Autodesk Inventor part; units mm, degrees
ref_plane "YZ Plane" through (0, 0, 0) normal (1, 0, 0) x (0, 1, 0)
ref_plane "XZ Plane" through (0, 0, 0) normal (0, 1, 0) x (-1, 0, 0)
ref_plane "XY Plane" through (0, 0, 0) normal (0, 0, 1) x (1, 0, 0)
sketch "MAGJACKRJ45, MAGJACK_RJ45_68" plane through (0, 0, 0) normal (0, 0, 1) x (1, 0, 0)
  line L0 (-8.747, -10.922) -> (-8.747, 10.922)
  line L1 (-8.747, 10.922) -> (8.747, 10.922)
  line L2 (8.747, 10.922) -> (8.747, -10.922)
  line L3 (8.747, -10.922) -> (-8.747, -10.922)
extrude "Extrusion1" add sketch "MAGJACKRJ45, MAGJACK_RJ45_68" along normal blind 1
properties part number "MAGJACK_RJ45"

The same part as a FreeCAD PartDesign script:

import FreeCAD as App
import Part
import Sketcher

V = App.Vector


def add_polygon(sketch, points):
    """Adds a closed chain of lines whose ends are joined by coincident constraints."""
    first, n = sketch.GeometryCount, len(points)
    for a, b in zip(points, points[1:] + points[:1]):
        sketch.addGeometry(Part.LineSegment(App.Vector(*a, 0), App.Vector(*b, 0)), False)
    for i in range(n):
        sketch.addConstraint(Sketcher.Constraint("Coincident", first + i, 2, first + (i + 1) % n, 1))

doc = App.newDocument("Part")
body = doc.addObject("PartDesign::Body", "Body")

# Sketch on XY plane
sketch1 = body.newObject("Sketcher::SketchObject", "Sketch")
sketch1.AttachmentSupport = (doc.getObject("XY_Plane"), [""])
sketch1.MapMode = "FlatFace"
add_polygon(sketch1, [(-9, 11), (-9, -11), (9, -11), (9, 11)])  # lines 0-3
sketch1.addConstraint(Sketcher.Constraint("Vertical", 0))
sketch1.addConstraint(Sketcher.Constraint("Horizontal", 1))
sketch1.addConstraint(Sketcher.Constraint("Vertical", 2))
sketch1.addConstraint(Sketcher.Constraint("Horizontal", 3))
sketch1.addConstraint(Sketcher.Constraint("Symmetric", 0, 2, 2, 2, -1, 1))
sketch1.addConstraint(Sketcher.Constraint("DistanceX", 1, 1, 1, 2, 17.494))
sketch1.addConstraint(Sketcher.Constraint("DistanceY", 0, 2, 0, 1, 21.844))
pad1 = body.newObject("PartDesign::Pad", "Pad")
pad1.Profile = sketch1
pad1.Length = 1

doc.recompute()
